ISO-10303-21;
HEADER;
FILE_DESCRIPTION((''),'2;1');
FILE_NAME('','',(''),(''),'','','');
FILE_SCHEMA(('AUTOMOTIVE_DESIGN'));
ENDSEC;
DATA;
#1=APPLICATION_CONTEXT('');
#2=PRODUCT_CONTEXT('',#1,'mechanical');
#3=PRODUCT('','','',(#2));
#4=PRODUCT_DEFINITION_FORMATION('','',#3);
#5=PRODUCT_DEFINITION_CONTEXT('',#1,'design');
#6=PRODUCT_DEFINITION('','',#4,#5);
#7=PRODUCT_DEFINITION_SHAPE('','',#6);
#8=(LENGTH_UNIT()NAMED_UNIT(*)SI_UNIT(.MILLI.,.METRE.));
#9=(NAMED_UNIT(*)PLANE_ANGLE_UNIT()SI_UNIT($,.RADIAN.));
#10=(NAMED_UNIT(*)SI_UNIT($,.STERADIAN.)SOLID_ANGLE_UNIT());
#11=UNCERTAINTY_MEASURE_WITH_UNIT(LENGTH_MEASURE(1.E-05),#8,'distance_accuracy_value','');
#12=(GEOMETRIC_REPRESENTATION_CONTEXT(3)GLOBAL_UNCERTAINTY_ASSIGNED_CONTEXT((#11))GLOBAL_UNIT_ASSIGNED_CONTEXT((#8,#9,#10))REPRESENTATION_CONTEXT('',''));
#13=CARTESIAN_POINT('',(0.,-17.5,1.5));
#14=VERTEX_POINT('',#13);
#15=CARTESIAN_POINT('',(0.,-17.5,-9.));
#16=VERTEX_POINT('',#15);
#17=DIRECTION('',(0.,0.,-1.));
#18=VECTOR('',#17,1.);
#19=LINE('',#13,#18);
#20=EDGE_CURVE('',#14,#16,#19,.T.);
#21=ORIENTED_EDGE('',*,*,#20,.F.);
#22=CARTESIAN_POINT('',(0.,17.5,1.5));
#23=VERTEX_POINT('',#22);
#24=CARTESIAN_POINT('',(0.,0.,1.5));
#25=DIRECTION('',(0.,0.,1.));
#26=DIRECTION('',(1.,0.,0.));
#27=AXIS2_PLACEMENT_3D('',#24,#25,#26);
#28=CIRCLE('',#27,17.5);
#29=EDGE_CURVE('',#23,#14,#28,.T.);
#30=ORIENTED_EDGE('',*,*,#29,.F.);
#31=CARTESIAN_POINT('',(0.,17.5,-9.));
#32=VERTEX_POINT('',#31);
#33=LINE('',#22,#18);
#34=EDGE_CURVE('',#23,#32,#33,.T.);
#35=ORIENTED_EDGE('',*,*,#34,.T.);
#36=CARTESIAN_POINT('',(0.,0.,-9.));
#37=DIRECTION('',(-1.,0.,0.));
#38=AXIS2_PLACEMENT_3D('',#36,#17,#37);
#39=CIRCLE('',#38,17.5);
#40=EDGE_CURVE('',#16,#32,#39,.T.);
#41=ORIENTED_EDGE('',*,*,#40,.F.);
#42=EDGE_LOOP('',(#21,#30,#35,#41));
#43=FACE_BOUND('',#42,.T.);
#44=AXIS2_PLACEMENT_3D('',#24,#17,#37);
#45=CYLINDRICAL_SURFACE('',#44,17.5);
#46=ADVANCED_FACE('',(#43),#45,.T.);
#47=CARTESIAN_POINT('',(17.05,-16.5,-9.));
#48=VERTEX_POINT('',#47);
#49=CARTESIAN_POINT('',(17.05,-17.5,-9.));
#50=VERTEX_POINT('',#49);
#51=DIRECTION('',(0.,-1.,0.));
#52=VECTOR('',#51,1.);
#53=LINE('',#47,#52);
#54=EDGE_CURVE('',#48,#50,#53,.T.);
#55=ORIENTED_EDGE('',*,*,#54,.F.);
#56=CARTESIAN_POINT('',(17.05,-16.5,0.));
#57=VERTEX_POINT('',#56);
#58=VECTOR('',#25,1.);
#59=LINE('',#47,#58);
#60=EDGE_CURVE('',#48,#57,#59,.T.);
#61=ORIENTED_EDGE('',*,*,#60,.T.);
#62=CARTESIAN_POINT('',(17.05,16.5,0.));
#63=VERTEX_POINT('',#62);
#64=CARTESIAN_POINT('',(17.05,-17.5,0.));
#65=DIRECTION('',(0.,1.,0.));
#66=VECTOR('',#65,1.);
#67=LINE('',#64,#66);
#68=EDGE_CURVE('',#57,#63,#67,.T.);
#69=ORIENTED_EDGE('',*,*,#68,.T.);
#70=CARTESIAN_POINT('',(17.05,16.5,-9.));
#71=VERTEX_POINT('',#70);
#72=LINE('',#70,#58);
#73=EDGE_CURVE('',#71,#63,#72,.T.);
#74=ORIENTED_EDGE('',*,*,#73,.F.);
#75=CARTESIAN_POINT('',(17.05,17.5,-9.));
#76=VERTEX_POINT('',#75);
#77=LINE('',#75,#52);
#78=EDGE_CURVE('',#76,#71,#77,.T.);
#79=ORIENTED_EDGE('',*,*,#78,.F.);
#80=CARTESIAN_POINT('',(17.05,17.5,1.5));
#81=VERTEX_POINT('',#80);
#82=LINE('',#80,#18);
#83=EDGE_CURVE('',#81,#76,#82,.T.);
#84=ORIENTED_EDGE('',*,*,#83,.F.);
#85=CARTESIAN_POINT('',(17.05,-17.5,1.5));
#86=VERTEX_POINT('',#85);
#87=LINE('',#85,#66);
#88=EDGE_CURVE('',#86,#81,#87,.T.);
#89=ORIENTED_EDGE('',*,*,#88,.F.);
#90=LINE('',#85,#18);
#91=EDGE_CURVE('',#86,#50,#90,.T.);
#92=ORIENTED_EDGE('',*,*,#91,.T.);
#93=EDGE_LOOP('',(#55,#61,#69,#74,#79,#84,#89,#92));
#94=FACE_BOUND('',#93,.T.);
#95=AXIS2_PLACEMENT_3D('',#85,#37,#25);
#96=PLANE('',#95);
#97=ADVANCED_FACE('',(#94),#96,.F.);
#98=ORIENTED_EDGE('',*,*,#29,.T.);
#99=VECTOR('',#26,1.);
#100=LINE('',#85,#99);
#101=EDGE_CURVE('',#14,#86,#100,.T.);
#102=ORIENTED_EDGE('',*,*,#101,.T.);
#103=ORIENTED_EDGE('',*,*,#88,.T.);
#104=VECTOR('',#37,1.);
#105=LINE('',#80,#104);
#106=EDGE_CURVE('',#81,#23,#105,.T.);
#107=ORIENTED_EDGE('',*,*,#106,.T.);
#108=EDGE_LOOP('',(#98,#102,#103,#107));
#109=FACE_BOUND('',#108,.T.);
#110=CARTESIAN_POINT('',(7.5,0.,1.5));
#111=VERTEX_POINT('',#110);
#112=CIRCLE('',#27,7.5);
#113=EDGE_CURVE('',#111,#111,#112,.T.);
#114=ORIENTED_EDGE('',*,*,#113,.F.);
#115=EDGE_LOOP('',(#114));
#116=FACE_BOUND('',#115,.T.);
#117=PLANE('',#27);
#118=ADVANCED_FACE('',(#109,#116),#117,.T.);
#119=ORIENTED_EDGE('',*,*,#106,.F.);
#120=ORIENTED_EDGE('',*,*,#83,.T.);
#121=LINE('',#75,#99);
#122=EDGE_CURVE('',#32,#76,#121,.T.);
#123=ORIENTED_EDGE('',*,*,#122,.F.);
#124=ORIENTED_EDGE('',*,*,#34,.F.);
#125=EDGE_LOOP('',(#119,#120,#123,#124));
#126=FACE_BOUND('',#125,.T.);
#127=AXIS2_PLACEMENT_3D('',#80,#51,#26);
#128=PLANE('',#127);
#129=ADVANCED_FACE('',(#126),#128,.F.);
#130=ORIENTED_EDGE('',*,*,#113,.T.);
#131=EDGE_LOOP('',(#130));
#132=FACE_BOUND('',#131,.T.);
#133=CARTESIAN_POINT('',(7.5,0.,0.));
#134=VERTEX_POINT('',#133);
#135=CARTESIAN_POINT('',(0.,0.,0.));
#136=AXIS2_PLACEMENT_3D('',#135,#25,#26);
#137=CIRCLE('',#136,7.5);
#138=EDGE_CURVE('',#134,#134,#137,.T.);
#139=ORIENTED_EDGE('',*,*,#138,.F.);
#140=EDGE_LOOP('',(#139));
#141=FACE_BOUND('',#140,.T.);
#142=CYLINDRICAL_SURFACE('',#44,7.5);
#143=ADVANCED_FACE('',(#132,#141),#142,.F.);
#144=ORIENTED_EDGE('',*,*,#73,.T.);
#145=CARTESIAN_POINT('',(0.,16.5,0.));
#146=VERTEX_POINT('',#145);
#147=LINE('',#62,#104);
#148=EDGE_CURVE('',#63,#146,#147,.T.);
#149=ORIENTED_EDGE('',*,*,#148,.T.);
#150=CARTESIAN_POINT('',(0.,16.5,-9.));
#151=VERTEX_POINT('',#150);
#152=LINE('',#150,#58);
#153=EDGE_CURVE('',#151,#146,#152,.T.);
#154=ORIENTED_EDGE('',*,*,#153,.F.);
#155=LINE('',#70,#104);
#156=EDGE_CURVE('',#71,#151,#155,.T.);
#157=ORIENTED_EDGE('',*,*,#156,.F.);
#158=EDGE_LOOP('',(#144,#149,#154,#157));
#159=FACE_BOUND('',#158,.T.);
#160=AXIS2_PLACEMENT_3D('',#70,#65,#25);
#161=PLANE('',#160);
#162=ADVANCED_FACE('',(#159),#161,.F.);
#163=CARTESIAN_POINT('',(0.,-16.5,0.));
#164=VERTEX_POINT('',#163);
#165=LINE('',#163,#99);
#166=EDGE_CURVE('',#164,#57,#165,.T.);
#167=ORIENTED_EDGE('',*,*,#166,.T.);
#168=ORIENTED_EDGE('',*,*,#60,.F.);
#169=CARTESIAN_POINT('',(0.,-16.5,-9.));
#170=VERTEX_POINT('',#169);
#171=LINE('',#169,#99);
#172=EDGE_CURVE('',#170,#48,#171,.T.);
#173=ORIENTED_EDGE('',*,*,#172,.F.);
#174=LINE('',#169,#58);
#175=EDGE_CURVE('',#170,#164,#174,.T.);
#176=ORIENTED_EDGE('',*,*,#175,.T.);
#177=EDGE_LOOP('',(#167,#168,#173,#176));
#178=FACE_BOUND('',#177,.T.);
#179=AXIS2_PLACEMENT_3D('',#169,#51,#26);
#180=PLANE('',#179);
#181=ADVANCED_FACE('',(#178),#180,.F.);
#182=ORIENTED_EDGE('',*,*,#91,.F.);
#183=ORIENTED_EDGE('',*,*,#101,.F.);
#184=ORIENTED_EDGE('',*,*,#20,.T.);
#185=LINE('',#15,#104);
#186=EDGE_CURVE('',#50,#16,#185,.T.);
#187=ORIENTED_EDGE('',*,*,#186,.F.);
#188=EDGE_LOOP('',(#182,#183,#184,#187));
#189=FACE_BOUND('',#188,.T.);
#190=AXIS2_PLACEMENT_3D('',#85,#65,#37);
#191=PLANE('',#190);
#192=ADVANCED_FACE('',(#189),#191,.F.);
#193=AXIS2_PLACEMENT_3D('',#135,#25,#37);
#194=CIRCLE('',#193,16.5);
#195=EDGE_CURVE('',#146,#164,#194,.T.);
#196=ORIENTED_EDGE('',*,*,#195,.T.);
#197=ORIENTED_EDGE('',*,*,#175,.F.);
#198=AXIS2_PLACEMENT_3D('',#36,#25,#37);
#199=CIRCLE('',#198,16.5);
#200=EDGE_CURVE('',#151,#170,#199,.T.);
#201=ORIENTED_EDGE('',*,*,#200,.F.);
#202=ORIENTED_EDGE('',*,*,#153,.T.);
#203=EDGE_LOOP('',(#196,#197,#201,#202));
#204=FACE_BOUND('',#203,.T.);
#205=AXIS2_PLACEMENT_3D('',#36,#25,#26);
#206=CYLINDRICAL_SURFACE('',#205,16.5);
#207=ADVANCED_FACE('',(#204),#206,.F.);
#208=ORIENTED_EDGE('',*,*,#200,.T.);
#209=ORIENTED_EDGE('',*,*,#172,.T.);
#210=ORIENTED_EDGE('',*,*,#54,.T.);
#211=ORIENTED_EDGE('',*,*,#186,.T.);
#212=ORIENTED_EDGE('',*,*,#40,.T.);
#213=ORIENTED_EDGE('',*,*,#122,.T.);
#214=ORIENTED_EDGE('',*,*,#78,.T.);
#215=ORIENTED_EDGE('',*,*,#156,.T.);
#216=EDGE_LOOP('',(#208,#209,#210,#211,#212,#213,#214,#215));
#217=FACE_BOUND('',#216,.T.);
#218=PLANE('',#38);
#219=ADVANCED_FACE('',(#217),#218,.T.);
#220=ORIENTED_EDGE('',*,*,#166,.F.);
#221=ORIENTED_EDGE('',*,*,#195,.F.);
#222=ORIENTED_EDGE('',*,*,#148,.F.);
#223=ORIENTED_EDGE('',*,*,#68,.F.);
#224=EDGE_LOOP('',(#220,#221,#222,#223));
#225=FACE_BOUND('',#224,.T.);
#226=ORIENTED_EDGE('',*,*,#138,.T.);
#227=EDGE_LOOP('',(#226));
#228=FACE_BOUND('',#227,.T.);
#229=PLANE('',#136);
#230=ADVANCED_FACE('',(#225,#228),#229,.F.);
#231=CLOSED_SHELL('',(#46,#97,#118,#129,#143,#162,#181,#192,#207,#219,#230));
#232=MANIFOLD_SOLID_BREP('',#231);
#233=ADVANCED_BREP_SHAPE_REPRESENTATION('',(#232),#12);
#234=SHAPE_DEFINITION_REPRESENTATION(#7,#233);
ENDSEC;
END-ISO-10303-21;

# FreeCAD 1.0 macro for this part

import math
import FreeCAD as App
import Part
import Sketcher
from FreeCAD import Vector

doc = App.newDocument("Part")
body = doc.addObject("PartDesign::Body", "Body")

# Sketch on XY plane
sketch1 = body.newObject("Sketcher::SketchObject", "Sketch")
sketch1.AttachmentSupport = (doc.getObject("XY_Plane"), [""])
sketch1.MapMode = "FlatFace"
sketch1.addGeometry(Part.LineSegment(Vector(0, -17.5, 0), Vector(17.05, -17.5, 0)), False)
sketch1.addGeometry(Part.LineSegment(Vector(17.05, -17.5, 0), Vector(17.05, 17.5, 0)), False)
sketch1.addGeometry(Part.LineSegment(Vector(17.05, 17.5, 0), Vector(0, 17.5, 0)), False)
sketch1.addGeometry(Part.ArcOfCircle(Part.Circle(Vector(0, 0, 0), Vector(0, 0, 1), 17.5), math.radians(90), math.radians(270)), False)
sketch1.addGeometry(Part.Circle(Vector(0, 0, 0), Vector(0, 0, 1), 7.5), False)
sketch1.addConstraint(Sketcher.Constraint("Coincident", 0, 2, 1, 1))
sketch1.addConstraint(Sketcher.Constraint("Coincident", 1, 2, 2, 1))
sketch1.addConstraint(Sketcher.Constraint("Tangent", 2, 2, 3, 1))
sketch1.addConstraint(Sketcher.Constraint("Tangent", 3, 2, 0, 1))
sketch1.addConstraint(Sketcher.Constraint("Horizontal", 0))
sketch1.addConstraint(Sketcher.Constraint("Vertical", 1))
sketch1.addConstraint(Sketcher.Constraint("Horizontal", 2))
sketch1.addConstraint(Sketcher.Constraint("Coincident", 3, 3, -1, 1))
sketch1.addConstraint(Sketcher.Constraint("Coincident", 4, 3, -1, 1))
sketch1.addConstraint(Sketcher.Constraint("Diameter", 4, 15.0))
sketch1.addConstraint(Sketcher.Constraint("Radius", 3, 17.5))
sketch1.addConstraint(Sketcher.Constraint("DistanceX", 0, 1, 0, 2, 17.05))
pad1 = body.newObject("PartDesign::Pad", "Pad")
pad1.Profile = sketch1
pad1.Length = 1.5

# Sketch on XY plane
sketch2 = body.newObject("Sketcher::SketchObject", "Sketch001")
sketch2.AttachmentSupport = (doc.getObject("XY_Plane"), [""])
sketch2.MapMode = "FlatFace"
sketch2.AttachmentOffset = App.Placement(Vector(0, 0, -9), App.Rotation())
sketch2.addGeometry(Part.LineSegment(Vector(0, 17.5, 0), Vector(17.05, 17.5, 0)), False)
sketch2.addGeometry(Part.LineSegment(Vector(17.05, 17.5, 0), Vector(17.05, 16.5, 0)), False)
sketch2.addGeometry(Part.LineSegment(Vector(17.05, 16.5, 0), Vector(0, 16.5, 0)), False)
sketch2.addGeometry(Part.ArcOfCircle(Part.Circle(Vector(0, 0, 0), Vector(0, 0, 1), 16.5), math.radians(90), math.radians(270)), False)
sketch2.addGeometry(Part.LineSegment(Vector(0, -16.5, 0), Vector(17.05, -16.5, 0)), False)
sketch2.addGeometry(Part.LineSegment(Vector(17.05, -16.5, 0), Vector(17.05, -17.5, 0)), False)
sketch2.addGeometry(Part.LineSegment(Vector(17.05, -17.5, 0), Vector(0, -17.5, 0)), False)
sketch2.addGeometry(Part.ArcOfCircle(Part.Circle(Vector(0, 0, 0), Vector(0, 0, 1), 17.5), math.radians(90), math.radians(270)), False)
sketch2.addConstraint(Sketcher.Constraint("Coincident", 0, 2, 1, 1))
sketch2.addConstraint(Sketcher.Constraint("Coincident", 1, 2, 2, 1))
sketch2.addConstraint(Sketcher.Constraint("Tangent", 2, 2, 3, 1))
sketch2.addConstraint(Sketcher.Constraint("Tangent", 3, 2, 4, 1))
sketch2.addConstraint(Sketcher.Constraint("Coincident", 4, 2, 5, 1))
sketch2.addConstraint(Sketcher.Constraint("Coincident", 5, 2, 6, 1))
sketch2.addConstraint(Sketcher.Constraint("Tangent", 6, 2, 7, 2))
sketch2.addConstraint(Sketcher.Constraint("Tangent", 7, 1, 0, 1))
sketch2.addConstraint(Sketcher.Constraint("Horizontal", 0))
sketch2.addConstraint(Sketcher.Constraint("Vertical", 1))
sketch2.addConstraint(Sketcher.Constraint("Horizontal", 2))
sketch2.addConstraint(Sketcher.Constraint("Horizontal", 4))
sketch2.addConstraint(Sketcher.Constraint("Vertical", 5))
sketch2.addConstraint(Sketcher.Constraint("Horizontal", 6))
sketch2.addConstraint(Sketcher.Constraint("Coincident", 3, 3, -1, 1))
sketch2.addConstraint(Sketcher.Constraint("Coincident", 7, 3, -1, 1))
sketch2.addConstraint(Sketcher.Constraint("Vertical", 1, 2, 4, 2))
sketch2.addConstraint(Sketcher.Constraint("Radius", 3, 16.5))
sketch2.addConstraint(Sketcher.Constraint("Radius", 7, 17.5))
sketch2.addConstraint(Sketcher.Constraint("DistanceX", 0, 1, 0, 2, 17.05))
pad2 = body.newObject("PartDesign::Pad", "Pad001")
pad2.Profile = sketch2
pad2.Length = 9

doc.recompute()
